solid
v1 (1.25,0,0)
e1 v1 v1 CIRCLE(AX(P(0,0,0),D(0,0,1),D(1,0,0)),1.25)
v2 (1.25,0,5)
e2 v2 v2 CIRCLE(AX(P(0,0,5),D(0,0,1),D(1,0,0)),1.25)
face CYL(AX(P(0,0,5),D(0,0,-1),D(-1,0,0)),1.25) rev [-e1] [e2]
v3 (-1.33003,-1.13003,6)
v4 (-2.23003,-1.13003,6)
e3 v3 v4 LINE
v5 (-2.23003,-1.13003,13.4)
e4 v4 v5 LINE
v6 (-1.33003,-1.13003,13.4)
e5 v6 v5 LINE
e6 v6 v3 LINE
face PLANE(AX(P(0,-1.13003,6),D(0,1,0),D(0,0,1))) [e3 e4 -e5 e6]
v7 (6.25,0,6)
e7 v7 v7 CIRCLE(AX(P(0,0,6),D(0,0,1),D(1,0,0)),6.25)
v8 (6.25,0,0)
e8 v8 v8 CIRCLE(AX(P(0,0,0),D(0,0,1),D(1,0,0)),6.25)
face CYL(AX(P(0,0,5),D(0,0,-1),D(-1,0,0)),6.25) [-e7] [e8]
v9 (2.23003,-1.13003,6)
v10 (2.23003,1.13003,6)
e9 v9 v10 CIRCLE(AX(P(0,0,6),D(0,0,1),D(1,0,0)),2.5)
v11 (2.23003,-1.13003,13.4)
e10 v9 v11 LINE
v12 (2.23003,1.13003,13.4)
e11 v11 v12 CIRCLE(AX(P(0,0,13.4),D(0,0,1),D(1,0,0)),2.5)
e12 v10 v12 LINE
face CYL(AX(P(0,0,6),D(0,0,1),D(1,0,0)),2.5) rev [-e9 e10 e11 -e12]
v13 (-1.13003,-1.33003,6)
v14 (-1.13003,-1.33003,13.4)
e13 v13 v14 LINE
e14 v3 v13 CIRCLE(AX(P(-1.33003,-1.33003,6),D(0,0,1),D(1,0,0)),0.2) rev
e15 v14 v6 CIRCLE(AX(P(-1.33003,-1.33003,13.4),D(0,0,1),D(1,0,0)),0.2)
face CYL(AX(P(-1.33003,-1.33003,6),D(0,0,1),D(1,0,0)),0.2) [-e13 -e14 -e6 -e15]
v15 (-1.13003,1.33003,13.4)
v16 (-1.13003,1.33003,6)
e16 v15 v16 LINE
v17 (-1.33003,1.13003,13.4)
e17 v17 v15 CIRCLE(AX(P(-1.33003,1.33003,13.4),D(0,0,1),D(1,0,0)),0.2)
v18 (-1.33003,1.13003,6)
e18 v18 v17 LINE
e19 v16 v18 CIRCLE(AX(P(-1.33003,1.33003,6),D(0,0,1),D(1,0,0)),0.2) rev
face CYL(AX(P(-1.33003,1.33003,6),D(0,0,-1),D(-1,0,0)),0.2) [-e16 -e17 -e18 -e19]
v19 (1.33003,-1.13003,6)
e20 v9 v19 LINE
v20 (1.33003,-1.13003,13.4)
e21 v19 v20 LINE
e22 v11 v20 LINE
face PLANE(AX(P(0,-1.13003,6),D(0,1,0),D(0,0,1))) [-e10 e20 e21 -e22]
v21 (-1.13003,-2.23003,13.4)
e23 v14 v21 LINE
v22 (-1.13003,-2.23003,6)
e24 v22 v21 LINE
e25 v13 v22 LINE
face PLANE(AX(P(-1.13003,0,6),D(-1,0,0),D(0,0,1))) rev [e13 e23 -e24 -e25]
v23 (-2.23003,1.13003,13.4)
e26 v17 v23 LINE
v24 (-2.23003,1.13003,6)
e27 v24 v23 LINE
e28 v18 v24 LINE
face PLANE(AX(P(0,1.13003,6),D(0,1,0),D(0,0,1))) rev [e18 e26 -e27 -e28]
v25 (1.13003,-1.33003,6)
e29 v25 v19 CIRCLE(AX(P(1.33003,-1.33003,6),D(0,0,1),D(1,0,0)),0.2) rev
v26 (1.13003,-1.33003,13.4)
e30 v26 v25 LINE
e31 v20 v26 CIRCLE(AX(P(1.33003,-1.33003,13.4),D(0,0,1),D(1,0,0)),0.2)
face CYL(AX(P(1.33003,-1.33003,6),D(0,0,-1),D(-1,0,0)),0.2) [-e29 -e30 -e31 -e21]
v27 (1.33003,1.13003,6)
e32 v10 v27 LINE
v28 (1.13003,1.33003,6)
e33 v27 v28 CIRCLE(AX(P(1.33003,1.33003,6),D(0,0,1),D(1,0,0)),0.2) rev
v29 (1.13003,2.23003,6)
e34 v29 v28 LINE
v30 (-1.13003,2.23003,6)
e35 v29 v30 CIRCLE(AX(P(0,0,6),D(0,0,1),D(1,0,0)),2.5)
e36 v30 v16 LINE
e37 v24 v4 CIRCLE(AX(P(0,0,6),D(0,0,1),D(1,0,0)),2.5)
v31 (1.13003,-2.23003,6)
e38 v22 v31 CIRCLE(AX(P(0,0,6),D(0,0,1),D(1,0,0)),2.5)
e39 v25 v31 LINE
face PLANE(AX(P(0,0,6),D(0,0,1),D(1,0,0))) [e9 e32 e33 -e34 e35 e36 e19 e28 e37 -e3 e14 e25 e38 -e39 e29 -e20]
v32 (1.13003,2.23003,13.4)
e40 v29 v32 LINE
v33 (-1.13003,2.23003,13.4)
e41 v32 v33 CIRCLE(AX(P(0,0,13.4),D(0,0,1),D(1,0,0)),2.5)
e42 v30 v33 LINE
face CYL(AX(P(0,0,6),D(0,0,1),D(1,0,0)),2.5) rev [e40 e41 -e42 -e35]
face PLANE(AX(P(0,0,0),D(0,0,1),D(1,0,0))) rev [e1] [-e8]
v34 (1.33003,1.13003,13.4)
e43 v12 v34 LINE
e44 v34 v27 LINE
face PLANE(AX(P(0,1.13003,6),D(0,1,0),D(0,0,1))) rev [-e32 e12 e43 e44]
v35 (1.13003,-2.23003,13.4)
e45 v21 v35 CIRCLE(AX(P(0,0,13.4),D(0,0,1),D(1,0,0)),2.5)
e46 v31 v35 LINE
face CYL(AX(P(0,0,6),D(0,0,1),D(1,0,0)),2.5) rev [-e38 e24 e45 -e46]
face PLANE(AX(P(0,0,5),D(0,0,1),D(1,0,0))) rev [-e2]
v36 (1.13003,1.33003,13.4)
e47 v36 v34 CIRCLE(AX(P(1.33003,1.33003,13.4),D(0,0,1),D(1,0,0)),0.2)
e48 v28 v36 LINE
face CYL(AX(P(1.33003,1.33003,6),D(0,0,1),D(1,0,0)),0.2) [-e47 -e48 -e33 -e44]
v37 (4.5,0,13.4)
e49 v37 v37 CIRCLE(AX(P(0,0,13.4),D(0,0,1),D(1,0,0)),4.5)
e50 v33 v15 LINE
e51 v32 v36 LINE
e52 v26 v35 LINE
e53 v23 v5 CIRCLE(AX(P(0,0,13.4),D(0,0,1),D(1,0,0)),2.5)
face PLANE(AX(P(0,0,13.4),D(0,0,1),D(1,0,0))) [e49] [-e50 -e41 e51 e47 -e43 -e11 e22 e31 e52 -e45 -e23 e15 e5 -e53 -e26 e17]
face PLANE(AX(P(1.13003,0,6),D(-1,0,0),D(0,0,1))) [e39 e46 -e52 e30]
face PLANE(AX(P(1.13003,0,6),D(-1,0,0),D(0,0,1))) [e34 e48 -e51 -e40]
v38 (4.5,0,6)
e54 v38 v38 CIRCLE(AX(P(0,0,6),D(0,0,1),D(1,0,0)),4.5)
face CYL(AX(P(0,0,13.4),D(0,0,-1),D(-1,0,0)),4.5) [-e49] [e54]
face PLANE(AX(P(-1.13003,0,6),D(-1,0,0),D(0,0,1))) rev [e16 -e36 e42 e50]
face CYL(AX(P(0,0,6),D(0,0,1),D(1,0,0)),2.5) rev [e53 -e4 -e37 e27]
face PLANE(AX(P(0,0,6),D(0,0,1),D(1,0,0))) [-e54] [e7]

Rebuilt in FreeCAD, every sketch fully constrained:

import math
import FreeCAD as App
import Part
import Sketcher


def edges_at(feature, points):
    """Names of the edges that pass closest to the given points."""
    edges = feature.Shape.Edges
    near = lambda p: min(range(len(edges)), key=lambda i: edges[i].distToShape(Part.Vertex(*p))[0])
    return sorted({f"Edge{near(p) + 1}" for p in points})

doc = App.newDocument("Part")
body = doc.addObject("PartDesign::Body", "Body")

sketch1 = body.newObject("Sketcher::SketchObject", "Sketch")
sketch1.AttachmentSupport = (doc.getObject("XY_Plane"), [""])
sketch1.MapMode = "FlatFace"
sketch1.addGeometry(Part.Circle(App.Vector(0, 0, 0), App.Vector(0, 0, 1), 6.25), False)
sketch1.addGeometry(Part.Circle(App.Vector(0, 0, 0), App.Vector(0, 0, 1), 1.25), False)
sketch1.addConstraint(Sketcher.Constraint("Coincident", 0, 3, -1, 1))
sketch1.addConstraint(Sketcher.Constraint("Coincident", 1, 3, -1, 1))
sketch1.addConstraint(Sketcher.Constraint("Diameter", 0, 12.5))
sketch1.addConstraint(Sketcher.Constraint("Diameter", 1, 2.5))
pad1 = body.newObject("PartDesign::Pad", "Pad")
pad1.Profile = sketch1
pad1.Length = 5

sketch2 = body.newObject("Sketcher::SketchObject", "Sketch001")
sketch2.AttachmentSupport = (doc.getObject("XY_Plane"), [""])
sketch2.MapMode = "FlatFace"
sketch2.AttachmentOffset = App.Placement(App.Vector(0, 0, 5), App.Rotation())
sketch2.addGeometry(Part.Circle(App.Vector(0, 0, 0), App.Vector(0, 0, 1), 6.25), False)
sketch2.addConstraint(Sketcher.Constraint("Coincident", 0, 3, -1, 1))
sketch2.addConstraint(Sketcher.Constraint("Diameter", 0, 12.5))
pad2 = body.newObject("PartDesign::Pad", "Pad001")
pad2.Profile = sketch2
pad2.Length = 1

sketch3 = body.newObject("Sketcher::SketchObject", "Sketch002")
sketch3.AttachmentSupport = (doc.getObject("XY_Plane"), [""])
sketch3.MapMode = "FlatFace"
sketch3.AttachmentOffset = App.Placement(App.Vector(0, 0, 6), App.Rotation())
sketch3.addGeometry(Part.Circle(App.Vector(0, 0, 0), App.Vector(0, 0, 1), 4.5), False)
sketch3.addConstraint(Sketcher.Constraint("Coincident", 0, 3, -1, 1))
sketch3.addConstraint(Sketcher.Constraint("Diameter", 0, 9.0))
pad3 = body.newObject("PartDesign::Pad", "Pad002")
pad3.Profile = sketch3
pad3.Length = 7.4

sketch4 = body.newObject("Sketcher::SketchObject", "Sketch003")
sketch4.AttachmentSupport = (doc.getObject("XY_Plane"), [""])
sketch4.MapMode = "FlatFace"
sketch4.AttachmentOffset = App.Placement(App.Vector(0, 0, 13.4), App.Rotation())
sketch4.addGeometry(Part.LineSegment(App.Vector(-1.13003, -1.13003, 0), App.Vector(-1.13003, -2.23003, 0)), False)
sketch4.addGeometry(Part.ArcOfCircle(Part.Circle(App.Vector(0, 0, 0), App.Vector(0, 0, 1), 2.5), math.radians(-116.872839), math.radians(-63.127161)), False)
sketch4.addGeometry(Part.LineSegment(App.Vector(1.13003, -2.23003, 0), App.Vector(1.13003, -1.13003, 0)), False)
sketch4.addGeometry(Part.LineSegment(App.Vector(1.13003, -1.13003, 0), App.Vector(2.23003, -1.13003, 0)), False)
sketch4.addGeometry(Part.ArcOfCircle(Part.Circle(App.Vector(0, 0, 0), App.Vector(0, 0, 1), 2.5), math.radians(-26.872839), math.radians(26.872839)), False)
sketch4.addGeometry(Part.LineSegment(App.Vector(2.23003, 1.13003, 0), App.Vector(1.13003, 1.13003, 0)), False)
sketch4.addGeometry(Part.LineSegment(App.Vector(1.13003, 1.13003, 0), App.Vector(1.13003, 2.23003, 0)), False)
sketch4.addGeometry(Part.ArcOfCircle(Part.Circle(App.Vector(0, 0, 0), App.Vector(0, 0, 1), 2.5), math.radians(63.127161), math.radians(116.872839)), False)
sketch4.addGeometry(Part.LineSegment(App.Vector(-1.13003, 2.23003, 0), App.Vector(-1.13003, 1.13003, 0)), False)
sketch4.addGeometry(Part.LineSegment(App.Vector(-1.13003, 1.13003, 0), App.Vector(-2.23003, 1.13003, 0)), False)
sketch4.addGeometry(Part.ArcOfCircle(Part.Circle(App.Vector(0, 0, 0), App.Vector(0, 0, 1), 2.5), math.radians(153.127161), math.radians(206.872839)), False)
sketch4.addGeometry(Part.LineSegment(App.Vector(-2.23003, -1.13003, 0), App.Vector(-1.13003, -1.13003, 0)), False)
sketch4.addConstraint(Sketcher.Constraint("Coincident", 0, 2, 1, 1))
sketch4.addConstraint(Sketcher.Constraint("Coincident", 1, 2, 2, 1))
sketch4.addConstraint(Sketcher.Constraint("Coincident", 2, 2, 3, 1))
sketch4.addConstraint(Sketcher.Constraint("Coincident", 3, 2, 4, 1))
sketch4.addConstraint(Sketcher.Constraint("Coincident", 4, 2, 5, 1))
sketch4.addConstraint(Sketcher.Constraint("Coincident", 5, 2, 6, 1))
sketch4.addConstraint(Sketcher.Constraint("Coincident", 6, 2, 7, 1))
sketch4.addConstraint(Sketcher.Constraint("Coincident", 7, 2, 8, 1))
sketch4.addConstraint(Sketcher.Constraint("Coincident", 8, 2, 9, 1))
sketch4.addConstraint(Sketcher.Constraint("Coincident", 9, 2, 10, 1))
sketch4.addConstraint(Sketcher.Constraint("Coincident", 10, 2, 11, 1))
sketch4.addConstraint(Sketcher.Constraint("Coincident", 11, 2, 0, 1))
sketch4.addConstraint(Sketcher.Constraint("Vertical", 0))
sketch4.addConstraint(Sketcher.Constraint("Vertical", 2))
sketch4.addConstraint(Sketcher.Constraint("Horizontal", 3))
sketch4.addConstraint(Sketcher.Constraint("Horizontal", 5))
sketch4.addConstraint(Sketcher.Constraint("Vertical", 6))
sketch4.addConstraint(Sketcher.Constraint("Vertical", 8))
sketch4.addConstraint(Sketcher.Constraint("Horizontal", 9))
sketch4.addConstraint(Sketcher.Constraint("Horizontal", 11))
sketch4.addConstraint(Sketcher.Constraint("Coincident", 1, 3, -1, 1))
sketch4.addConstraint(Sketcher.Constraint("Coincident", 4, 3, -1, 1))
sketch4.addConstraint(Sketcher.Constraint("Coincident", 7, 3, -1, 1))
sketch4.addConstraint(Sketcher.Constraint("Coincident", 10, 3, -1, 1))
sketch4.addConstraint(Sketcher.Constraint("Equal", 1, 4))
sketch4.addConstraint(Sketcher.Constraint("Equal", 4, 7))
sketch4.addConstraint(Sketcher.Constraint("Equal", 7, 10))
sketch4.addConstraint(Sketcher.Constraint("Symmetric", 2, 2, 8, 2, -1, 1))
sketch4.addConstraint(Sketcher.Constraint("Symmetric", 5, 2, 11, 2, -1, 1))
sketch4.addConstraint(Sketcher.Constraint("Symmetric", 5, 2, 8, 2, -2))
sketch4.addConstraint(Sketcher.Constraint("Equal", 11, 0))
sketch4.addConstraint(Sketcher.Constraint("Radius", 1, 2.5))
sketch4.addConstraint(Sketcher.Constraint("DistanceX", 3, 1, 3, 2, 1.1))
pocket1 = body.newObject("PartDesign::Pocket", "Pocket")
pocket1.Profile = sketch4
pocket1.Length = 7.4
doc.recompute()

fillet = body.newObject("PartDesign::Fillet", "Fillet")
fillet.Base = (pocket1, edges_at(pocket1, [
    (-1.13, -1.13, 9.7),
    (-1.13, 1.13, 9.7),
    (1.13, 1.13, 9.7),
    (1.13, -1.13, 9.7),
]))
fillet.Radius = 0.2

doc.recompute()
